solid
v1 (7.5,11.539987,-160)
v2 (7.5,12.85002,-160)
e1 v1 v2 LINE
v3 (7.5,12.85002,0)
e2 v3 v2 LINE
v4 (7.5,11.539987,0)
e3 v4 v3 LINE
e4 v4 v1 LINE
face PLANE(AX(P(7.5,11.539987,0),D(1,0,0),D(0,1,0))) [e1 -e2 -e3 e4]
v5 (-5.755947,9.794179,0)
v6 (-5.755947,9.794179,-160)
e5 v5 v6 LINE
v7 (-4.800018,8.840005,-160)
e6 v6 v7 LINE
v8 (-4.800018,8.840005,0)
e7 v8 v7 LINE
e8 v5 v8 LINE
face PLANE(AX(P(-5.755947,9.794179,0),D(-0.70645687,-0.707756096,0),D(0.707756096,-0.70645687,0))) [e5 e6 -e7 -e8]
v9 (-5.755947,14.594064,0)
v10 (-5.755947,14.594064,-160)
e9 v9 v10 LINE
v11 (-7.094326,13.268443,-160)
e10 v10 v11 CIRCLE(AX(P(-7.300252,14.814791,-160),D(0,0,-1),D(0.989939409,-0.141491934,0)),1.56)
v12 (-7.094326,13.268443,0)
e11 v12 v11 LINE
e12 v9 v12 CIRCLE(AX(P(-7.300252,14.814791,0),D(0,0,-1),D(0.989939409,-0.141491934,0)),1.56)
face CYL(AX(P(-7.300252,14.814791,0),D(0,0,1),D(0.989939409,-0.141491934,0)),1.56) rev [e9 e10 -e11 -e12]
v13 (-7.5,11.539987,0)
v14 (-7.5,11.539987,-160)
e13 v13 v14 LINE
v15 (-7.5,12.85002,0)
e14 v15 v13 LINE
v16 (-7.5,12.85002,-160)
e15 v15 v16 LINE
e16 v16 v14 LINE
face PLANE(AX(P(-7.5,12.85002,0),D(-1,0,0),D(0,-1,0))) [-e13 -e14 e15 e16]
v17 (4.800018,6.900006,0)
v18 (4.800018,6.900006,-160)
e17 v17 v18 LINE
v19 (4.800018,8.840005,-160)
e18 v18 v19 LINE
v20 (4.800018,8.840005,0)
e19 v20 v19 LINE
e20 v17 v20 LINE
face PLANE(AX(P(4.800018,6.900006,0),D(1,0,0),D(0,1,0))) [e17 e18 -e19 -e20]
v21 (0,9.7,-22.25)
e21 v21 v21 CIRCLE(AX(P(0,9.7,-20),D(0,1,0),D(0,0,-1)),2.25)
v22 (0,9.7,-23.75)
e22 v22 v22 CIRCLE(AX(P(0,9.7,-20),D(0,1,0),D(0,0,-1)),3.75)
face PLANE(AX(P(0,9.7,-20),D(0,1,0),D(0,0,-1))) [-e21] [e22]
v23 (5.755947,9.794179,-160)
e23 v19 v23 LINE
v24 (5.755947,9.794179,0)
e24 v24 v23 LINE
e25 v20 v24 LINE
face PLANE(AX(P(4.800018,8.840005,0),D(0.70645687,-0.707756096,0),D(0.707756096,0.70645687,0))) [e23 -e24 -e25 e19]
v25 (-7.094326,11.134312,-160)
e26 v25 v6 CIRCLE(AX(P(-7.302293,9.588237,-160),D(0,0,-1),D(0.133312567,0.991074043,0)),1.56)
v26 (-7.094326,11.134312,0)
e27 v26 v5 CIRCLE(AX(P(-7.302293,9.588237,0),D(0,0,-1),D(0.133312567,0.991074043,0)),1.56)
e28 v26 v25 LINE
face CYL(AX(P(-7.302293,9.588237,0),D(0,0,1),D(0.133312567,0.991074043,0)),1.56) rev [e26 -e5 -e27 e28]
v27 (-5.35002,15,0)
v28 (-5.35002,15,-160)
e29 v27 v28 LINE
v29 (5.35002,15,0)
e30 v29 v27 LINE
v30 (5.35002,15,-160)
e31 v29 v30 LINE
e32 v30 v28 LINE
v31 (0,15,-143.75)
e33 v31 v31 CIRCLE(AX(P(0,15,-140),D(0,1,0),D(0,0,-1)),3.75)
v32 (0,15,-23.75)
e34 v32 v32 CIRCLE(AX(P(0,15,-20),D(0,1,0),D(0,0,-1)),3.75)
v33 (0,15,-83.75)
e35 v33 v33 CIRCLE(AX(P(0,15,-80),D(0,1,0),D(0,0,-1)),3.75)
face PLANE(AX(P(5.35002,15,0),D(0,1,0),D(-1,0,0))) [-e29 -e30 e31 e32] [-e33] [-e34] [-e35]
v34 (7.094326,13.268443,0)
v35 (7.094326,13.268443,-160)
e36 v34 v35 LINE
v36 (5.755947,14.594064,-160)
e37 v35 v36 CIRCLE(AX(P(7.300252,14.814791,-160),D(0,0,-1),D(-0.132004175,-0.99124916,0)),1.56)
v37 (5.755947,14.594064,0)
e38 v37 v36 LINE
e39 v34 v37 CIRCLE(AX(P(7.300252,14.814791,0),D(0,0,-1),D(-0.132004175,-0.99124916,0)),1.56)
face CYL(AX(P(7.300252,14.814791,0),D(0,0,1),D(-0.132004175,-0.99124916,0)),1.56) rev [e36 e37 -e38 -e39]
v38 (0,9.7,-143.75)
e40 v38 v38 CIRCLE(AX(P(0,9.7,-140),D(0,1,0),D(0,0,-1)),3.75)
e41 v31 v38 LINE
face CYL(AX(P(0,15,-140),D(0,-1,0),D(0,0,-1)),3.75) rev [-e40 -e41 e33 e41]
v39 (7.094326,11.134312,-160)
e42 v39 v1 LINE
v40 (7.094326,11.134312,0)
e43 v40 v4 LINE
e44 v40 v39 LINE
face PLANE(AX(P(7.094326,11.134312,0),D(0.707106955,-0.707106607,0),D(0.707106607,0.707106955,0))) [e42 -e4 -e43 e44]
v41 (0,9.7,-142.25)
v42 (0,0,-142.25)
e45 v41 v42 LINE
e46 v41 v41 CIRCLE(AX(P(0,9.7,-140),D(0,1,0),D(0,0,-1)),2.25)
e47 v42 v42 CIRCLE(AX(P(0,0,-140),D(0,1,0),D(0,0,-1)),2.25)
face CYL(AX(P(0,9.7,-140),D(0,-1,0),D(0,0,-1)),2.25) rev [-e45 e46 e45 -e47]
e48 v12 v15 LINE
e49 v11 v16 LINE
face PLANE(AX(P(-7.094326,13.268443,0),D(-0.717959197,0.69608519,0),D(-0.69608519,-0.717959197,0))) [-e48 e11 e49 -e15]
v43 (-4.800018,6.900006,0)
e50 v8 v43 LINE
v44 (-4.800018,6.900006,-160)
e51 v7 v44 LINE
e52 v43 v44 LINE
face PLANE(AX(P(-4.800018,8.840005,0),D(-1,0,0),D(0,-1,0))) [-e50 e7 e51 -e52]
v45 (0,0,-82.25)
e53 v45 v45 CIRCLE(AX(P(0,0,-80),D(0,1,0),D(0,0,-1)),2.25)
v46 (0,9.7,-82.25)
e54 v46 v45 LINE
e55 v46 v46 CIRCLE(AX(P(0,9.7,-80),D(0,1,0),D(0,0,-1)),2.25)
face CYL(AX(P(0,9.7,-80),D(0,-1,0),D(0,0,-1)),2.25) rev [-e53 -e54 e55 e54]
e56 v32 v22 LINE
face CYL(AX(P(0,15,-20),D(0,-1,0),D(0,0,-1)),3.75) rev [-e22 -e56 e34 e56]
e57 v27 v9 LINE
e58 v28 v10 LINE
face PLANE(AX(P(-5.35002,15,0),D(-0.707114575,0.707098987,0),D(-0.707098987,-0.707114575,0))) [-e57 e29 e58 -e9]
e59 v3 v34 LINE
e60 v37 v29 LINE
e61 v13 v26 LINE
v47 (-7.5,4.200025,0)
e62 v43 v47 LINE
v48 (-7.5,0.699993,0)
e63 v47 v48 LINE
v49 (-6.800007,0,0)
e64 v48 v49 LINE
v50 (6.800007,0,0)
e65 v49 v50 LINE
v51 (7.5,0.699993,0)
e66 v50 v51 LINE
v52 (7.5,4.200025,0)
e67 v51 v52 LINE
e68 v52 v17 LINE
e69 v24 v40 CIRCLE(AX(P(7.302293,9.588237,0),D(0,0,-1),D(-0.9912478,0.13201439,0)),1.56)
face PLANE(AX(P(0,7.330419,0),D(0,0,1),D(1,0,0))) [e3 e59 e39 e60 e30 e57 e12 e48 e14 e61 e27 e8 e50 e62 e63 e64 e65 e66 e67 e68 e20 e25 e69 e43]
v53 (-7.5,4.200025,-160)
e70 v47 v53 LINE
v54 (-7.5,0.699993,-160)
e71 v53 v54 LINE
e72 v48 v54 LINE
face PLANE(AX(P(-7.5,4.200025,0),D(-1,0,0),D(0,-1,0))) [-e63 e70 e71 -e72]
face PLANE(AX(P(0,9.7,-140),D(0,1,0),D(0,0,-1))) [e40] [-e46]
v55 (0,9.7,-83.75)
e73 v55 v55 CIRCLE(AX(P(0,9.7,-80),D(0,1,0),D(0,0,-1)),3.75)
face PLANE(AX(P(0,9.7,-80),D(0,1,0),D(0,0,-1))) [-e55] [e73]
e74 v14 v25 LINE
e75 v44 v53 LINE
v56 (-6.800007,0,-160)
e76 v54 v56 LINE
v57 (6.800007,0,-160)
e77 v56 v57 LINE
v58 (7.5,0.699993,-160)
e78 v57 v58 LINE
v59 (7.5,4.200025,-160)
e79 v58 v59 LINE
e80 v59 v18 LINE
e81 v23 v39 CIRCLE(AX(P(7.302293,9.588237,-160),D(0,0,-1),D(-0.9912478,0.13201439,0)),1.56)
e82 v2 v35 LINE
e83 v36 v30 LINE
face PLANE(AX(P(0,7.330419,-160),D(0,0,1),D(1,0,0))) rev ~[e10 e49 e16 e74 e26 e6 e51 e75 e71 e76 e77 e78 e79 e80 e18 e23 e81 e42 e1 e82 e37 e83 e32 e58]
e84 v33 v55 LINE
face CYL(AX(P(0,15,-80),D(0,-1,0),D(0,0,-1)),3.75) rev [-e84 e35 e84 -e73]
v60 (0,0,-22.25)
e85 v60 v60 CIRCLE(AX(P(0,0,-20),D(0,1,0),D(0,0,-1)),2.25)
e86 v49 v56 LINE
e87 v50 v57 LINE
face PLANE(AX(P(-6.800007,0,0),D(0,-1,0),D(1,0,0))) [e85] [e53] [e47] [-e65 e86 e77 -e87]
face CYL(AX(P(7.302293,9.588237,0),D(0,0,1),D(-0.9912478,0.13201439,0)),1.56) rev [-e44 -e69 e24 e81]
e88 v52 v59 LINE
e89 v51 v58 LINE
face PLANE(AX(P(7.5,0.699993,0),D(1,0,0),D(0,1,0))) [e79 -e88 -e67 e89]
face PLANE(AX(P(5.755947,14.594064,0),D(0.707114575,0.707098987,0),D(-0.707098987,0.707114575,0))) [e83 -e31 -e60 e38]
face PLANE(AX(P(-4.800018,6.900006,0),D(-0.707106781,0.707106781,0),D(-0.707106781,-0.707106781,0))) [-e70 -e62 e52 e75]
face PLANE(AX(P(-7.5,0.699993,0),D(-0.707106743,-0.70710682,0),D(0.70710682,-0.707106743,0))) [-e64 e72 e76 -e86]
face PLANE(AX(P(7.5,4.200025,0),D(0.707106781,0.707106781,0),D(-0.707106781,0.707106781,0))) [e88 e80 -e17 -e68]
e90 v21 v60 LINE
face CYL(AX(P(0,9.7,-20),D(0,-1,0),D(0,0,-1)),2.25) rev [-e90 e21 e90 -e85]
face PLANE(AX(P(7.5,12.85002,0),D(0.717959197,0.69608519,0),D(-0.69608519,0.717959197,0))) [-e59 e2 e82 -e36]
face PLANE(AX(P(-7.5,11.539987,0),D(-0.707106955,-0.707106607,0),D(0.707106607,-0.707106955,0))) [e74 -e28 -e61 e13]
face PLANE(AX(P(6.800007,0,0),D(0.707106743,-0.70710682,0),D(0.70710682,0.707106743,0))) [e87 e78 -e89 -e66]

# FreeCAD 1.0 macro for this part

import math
import FreeCAD as App
import Part
import Sketcher
Q = App.Units.Quantity

doc = App.newDocument("Part")
body = doc.addObject("PartDesign::Body", "Body")

# Sketch on XY plane
sketch1 = body.newObject("Sketcher::SketchObject", "Sketch")
sketch1.AttachmentSupport = (doc.getObject("XY_Plane"), [""])
sketch1.MapMode = "FlatFace"
sketch1.addGeometry([
    Part.LineSegment(App.Vector(-7.5, 0.7, 0), App.Vector(-6.8, 0, 0)),  # 0
    Part.LineSegment(App.Vector(-6.8, 0, 0), App.Vector(6.8, 0, 0)),  # 1
    Part.LineSegment(App.Vector(6.8, 0, 0), App.Vector(7.5, 0.7, 0)),  # 2
    Part.LineSegment(App.Vector(7.5, 0.7, 0), App.Vector(7.5, 4.2, 0)),  # 3
    Part.LineSegment(App.Vector(7.5, 4.2, 0), App.Vector(4.8, 6.9, 0)),  # 4
    Part.LineSegment(App.Vector(4.8, 6.9, 0), App.Vector(4.8, 8.8, 0)),  # 5
    Part.LineSegment(App.Vector(4.8, 8.8, 0), App.Vector(5.8, 9.8, 0)),  # 6
    Part.ArcOfCircle(Part.Circle(App.Vector(7.3, 9.6, 0), App.Vector(0, 0, 1), 1.6), math.radians(98), math.radians(172)),  # 7
    Part.LineSegment(App.Vector(7.1, 11.1, 0), App.Vector(7.5, 11.5, 0)),  # 8
    Part.LineSegment(App.Vector(7.5, 11.5, 0), App.Vector(7.5, 12.9, 0)),  # 9
    Part.LineSegment(App.Vector(7.5, 12.9, 0), App.Vector(7.1, 13.3, 0)),  # 10
    Part.ArcOfCircle(Part.Circle(App.Vector(7.3, 14.8, 0), App.Vector(0, 0, 1), 1.6), math.radians(-172), math.radians(-98)),  # 11
    Part.LineSegment(App.Vector(5.8, 14.6, 0), App.Vector(5.4, 15, 0)),  # 12
    Part.LineSegment(App.Vector(5.4, 15, 0), App.Vector(-5.4, 15, 0)),  # 13
    Part.LineSegment(App.Vector(-5.4, 15, 0), App.Vector(-5.8, 14.6, 0)),  # 14
    Part.ArcOfCircle(Part.Circle(App.Vector(-7.3, 14.8, 0), App.Vector(0, 0, 1), 1.6), math.radians(-82), math.radians(-8)),  # 15
    Part.LineSegment(App.Vector(-7.1, 13.3, 0), App.Vector(-7.5, 12.9, 0)),  # 16
    Part.LineSegment(App.Vector(-7.5, 12.9, 0), App.Vector(-7.5, 11.5, 0)),  # 17
    Part.LineSegment(App.Vector(-7.5, 11.5, 0), App.Vector(-7.1, 11.1, 0)),  # 18
    Part.ArcOfCircle(Part.Circle(App.Vector(-7.3, 9.6, 0), App.Vector(0, 0, 1), 1.6), math.radians(8), math.radians(82)),  # 19
    Part.LineSegment(App.Vector(-5.8, 9.8, 0), App.Vector(-4.8, 8.8, 0)),  # 20
    Part.LineSegment(App.Vector(-4.8, 8.8, 0), App.Vector(-4.8, 6.9, 0)),  # 21
    Part.LineSegment(App.Vector(-4.8, 6.9, 0), App.Vector(-7.5, 4.2, 0)),  # 22
    Part.LineSegment(App.Vector(-7.5, 4.2, 0), App.Vector(-7.5, 0.7, 0)),  # 23
], False)
sketch1.addConstraint([
    Sketcher.Constraint("Coincident", 0, 2, 1, 1),
    Sketcher.Constraint("Coincident", 1, 2, 2, 1),
    Sketcher.Constraint("Coincident", 2, 2, 3, 1),
    Sketcher.Constraint("Coincident", 3, 2, 4, 1),
    Sketcher.Constraint("Coincident", 4, 2, 5, 1),
    Sketcher.Constraint("Coincident", 5, 2, 6, 1),
    Sketcher.Constraint("Coincident", 6, 2, 7, 2),
    Sketcher.Constraint("Coincident", 7, 1, 8, 1),
    Sketcher.Constraint("Coincident", 8, 2, 9, 1),
    Sketcher.Constraint("Coincident", 9, 2, 10, 1),
    Sketcher.Constraint("Coincident", 10, 2, 11, 2),
    Sketcher.Constraint("Coincident", 11, 1, 12, 1),
    Sketcher.Constraint("Coincident", 12, 2, 13, 1),
    Sketcher.Constraint("Coincident", 13, 2, 14, 1),
    Sketcher.Constraint("Coincident", 14, 2, 15, 2),
    Sketcher.Constraint("Coincident", 15, 1, 16, 1),
    Sketcher.Constraint("Coincident", 16, 2, 17, 1),
    Sketcher.Constraint("Coincident", 17, 2, 18, 1),
    Sketcher.Constraint("Coincident", 18, 2, 19, 2),
    Sketcher.Constraint("Coincident", 19, 1, 20, 1),
    Sketcher.Constraint("Coincident", 20, 2, 21, 1),
    Sketcher.Constraint("Coincident", 21, 2, 22, 1),
    Sketcher.Constraint("Coincident", 22, 2, 23, 1),
    Sketcher.Constraint("Coincident", 23, 2, 0, 1),
    Sketcher.Constraint("Horizontal", 1),
    Sketcher.Constraint("Vertical", 3),
    Sketcher.Constraint("Vertical", 5),
    Sketcher.Constraint("Vertical", 9),
    Sketcher.Constraint("Horizontal", 13),
    Sketcher.Constraint("Vertical", 17),
    Sketcher.Constraint("Vertical", 21),
    Sketcher.Constraint("Vertical", 23),
    Sketcher.Constraint("Equal", 7, 11),
    Sketcher.Constraint("Equal", 11, 15),
    Sketcher.Constraint("Equal", 15, 19),
    Sketcher.Constraint("Symmetric", 0, 2, 1, 2, -1, 1),
    Sketcher.Constraint("Symmetric", 11, 3, 15, 3, -2),
    Sketcher.Constraint("Symmetric", 7, 3, 19, 3, -2),
    Sketcher.Constraint("Symmetric", 9, 2, 16, 2, -2),
    Sketcher.Constraint("Symmetric", 5, 2, 20, 2, -2),
    Sketcher.Constraint("Symmetric", 3, 2, 22, 2, -2),
    Sketcher.Constraint("Perpendicular", 0, 2),
    Sketcher.Constraint("Perpendicular", 2, 4),
    Sketcher.Constraint("Perpendicular", 4, 8),
    Sketcher.Constraint("Perpendicular", 8, 18),
    Sketcher.Constraint("Perpendicular", 18, 22),
    Sketcher.Constraint("Horizontal", 11, 1, 14, 2),
    Sketcher.Constraint("Horizontal", 10, 2, 15, 1),
    Sketcher.Constraint("Horizontal", 8, 2, 17, 2),
    Sketcher.Constraint("Horizontal", 7, 1, 18, 2),
    Sketcher.Constraint("Horizontal", 6, 2, 19, 1),
    Sketcher.Constraint("Vertical", 3, 2, 8, 2),
    Sketcher.Constraint("Vertical", 7, 1, 10, 2),
    Sketcher.Constraint("Vertical", 6, 2, 11, 1),
    Sketcher.Constraint("Equal", 12, 14),
    Sketcher.Constraint("Radius", 7, Q("1.56 mm")),
    Sketcher.Constraint("DistanceY", -1, 1, 12, 2, Q("15 mm")),
    Sketcher.Constraint("DistanceY", 5, 1, 5, 2, Q("1.939999 mm")),
    Sketcher.Constraint("DistanceX", -1, 1, 2, 2, Q("7.5 mm")),
    Sketcher.Constraint("DistanceX", 13, 2, 13, 1, Q("10.700039 mm")),
    Sketcher.Constraint("DistanceY", 3, 1, 3, 2, Q("3.500032 mm")),
    Sketcher.Constraint("DistanceX", 0, 2, 7, 3, Q("14.1023 mm")),
    Sketcher.Constraint("DistanceY", 2, 2, 11, 3, Q("14.114799 mm")),
    Sketcher.Constraint("Distance", 0, Q("0.989939 mm")),
    Sketcher.Constraint("Distance", 4, Q("3.818351 mm")),
    Sketcher.Constraint("Distance", 8, Q("0.57371 mm")),
    Sketcher.Constraint("DistanceY", 9, 1, 9, 2, Q("1.310034 mm")),
    Sketcher.Constraint("DistanceY", -1, 1, 6, 2, Q("9.794179 mm")),
    Sketcher.Constraint("DistanceY", -1, 1, 9, 2, Q("12.85002 mm")),
    Sketcher.Constraint("DistanceX", 11, 3, 7, 3, Q("0.002041 mm")),
])
pad1 = body.newObject("PartDesign::Pad", "Pad")
pad1.Profile = sketch1
pad1.Length = 160
pad1.Reversed = True

# Sketch on YZ plane
sketch2 = body.newObject("Sketcher::SketchObject", "Sketch001")
sketch2.AttachmentSupport = (doc.getObject("YZ_Plane"), [""])
sketch2.MapMode = "FlatFace"
sketch2.addGeometry([
    Part.LineSegment(App.Vector(15, -23.8, 0), App.Vector(15, -20, 0)),  # 0
    Part.LineSegment(App.Vector(15, -20, 0), App.Vector(0, -20, 0)),  # 1
    Part.LineSegment(App.Vector(0, -20, 0), App.Vector(0, -22.2, 0)),  # 2
    Part.LineSegment(App.Vector(0, -22.2, 0), App.Vector(9.7, -22.2, 0)),  # 3
    Part.LineSegment(App.Vector(9.7, -22.2, 0), App.Vector(9.7, -23.8, 0)),  # 4
    Part.LineSegment(App.Vector(9.7, -23.8, 0), App.Vector(15, -23.8, 0)),  # 5
], False)
sketch2.addGeometry(Part.LineSegment(App.Vector(0, -20, 0), App.Vector(15, -20, 0)), True)  # axis
sketch2.addConstraint([
    Sketcher.Constraint("Coincident", 0, 2, 1, 1),
    Sketcher.Constraint("Coincident", 1, 2, 2, 1),
    Sketcher.Constraint("Coincident", 2, 2, 3, 1),
    Sketcher.Constraint("Coincident", 3, 2, 4, 1),
    Sketcher.Constraint("Coincident", 4, 2, 5, 1),
    Sketcher.Constraint("Coincident", 5, 2, 0, 1),
    Sketcher.Constraint("Vertical", 0),
    Sketcher.Constraint("Horizontal", 1),
    Sketcher.Constraint("Vertical", 2),
    Sketcher.Constraint("Horizontal", 3),
    Sketcher.Constraint("Vertical", 4),
    Sketcher.Constraint("Horizontal", 5),
    Sketcher.Constraint("Horizontal", 6),
    Sketcher.Constraint("Coincident", 6, 1, 1, 2),
    Sketcher.Constraint("PointOnObject", 1, 2, -2),
    Sketcher.Constraint("Vertical", 5, 2, 6, 2),
    Sketcher.Constraint("DistanceX", 1, 2, 1, 1, Q("15 mm")),
    Sketcher.Constraint("DistanceX", 3, 1, 3, 2, Q("9.7 mm")),
    Sketcher.Constraint("DistanceY", 4, 2, 4, 1, Q("1.5 mm")),
    Sketcher.Constraint("DistanceY", 0, 2, -1, 1, Q("20 mm")),
    Sketcher.Constraint("DistanceY", 0, 1, 0, 2, Q("3.75 mm")),
])
groove = body.newObject("PartDesign::Groove", "Groove")
groove.Profile = sketch2
groove.ReferenceAxis = (sketch2, ["Axis0"])
groove.Angle = 360
doc.recompute()

linearpattern = body.newObject("PartDesign::LinearPattern", "LinearPattern")
linearpattern.Originals = [groove]
linearpattern.Direction = (doc.getObject("Z_Axis"), [""])
linearpattern.Mode = "offset"
linearpattern.Offset = 60
linearpattern.Occurrences = 3
linearpattern.Reversed = True
body.Tip = linearpattern

doc.recompute()
